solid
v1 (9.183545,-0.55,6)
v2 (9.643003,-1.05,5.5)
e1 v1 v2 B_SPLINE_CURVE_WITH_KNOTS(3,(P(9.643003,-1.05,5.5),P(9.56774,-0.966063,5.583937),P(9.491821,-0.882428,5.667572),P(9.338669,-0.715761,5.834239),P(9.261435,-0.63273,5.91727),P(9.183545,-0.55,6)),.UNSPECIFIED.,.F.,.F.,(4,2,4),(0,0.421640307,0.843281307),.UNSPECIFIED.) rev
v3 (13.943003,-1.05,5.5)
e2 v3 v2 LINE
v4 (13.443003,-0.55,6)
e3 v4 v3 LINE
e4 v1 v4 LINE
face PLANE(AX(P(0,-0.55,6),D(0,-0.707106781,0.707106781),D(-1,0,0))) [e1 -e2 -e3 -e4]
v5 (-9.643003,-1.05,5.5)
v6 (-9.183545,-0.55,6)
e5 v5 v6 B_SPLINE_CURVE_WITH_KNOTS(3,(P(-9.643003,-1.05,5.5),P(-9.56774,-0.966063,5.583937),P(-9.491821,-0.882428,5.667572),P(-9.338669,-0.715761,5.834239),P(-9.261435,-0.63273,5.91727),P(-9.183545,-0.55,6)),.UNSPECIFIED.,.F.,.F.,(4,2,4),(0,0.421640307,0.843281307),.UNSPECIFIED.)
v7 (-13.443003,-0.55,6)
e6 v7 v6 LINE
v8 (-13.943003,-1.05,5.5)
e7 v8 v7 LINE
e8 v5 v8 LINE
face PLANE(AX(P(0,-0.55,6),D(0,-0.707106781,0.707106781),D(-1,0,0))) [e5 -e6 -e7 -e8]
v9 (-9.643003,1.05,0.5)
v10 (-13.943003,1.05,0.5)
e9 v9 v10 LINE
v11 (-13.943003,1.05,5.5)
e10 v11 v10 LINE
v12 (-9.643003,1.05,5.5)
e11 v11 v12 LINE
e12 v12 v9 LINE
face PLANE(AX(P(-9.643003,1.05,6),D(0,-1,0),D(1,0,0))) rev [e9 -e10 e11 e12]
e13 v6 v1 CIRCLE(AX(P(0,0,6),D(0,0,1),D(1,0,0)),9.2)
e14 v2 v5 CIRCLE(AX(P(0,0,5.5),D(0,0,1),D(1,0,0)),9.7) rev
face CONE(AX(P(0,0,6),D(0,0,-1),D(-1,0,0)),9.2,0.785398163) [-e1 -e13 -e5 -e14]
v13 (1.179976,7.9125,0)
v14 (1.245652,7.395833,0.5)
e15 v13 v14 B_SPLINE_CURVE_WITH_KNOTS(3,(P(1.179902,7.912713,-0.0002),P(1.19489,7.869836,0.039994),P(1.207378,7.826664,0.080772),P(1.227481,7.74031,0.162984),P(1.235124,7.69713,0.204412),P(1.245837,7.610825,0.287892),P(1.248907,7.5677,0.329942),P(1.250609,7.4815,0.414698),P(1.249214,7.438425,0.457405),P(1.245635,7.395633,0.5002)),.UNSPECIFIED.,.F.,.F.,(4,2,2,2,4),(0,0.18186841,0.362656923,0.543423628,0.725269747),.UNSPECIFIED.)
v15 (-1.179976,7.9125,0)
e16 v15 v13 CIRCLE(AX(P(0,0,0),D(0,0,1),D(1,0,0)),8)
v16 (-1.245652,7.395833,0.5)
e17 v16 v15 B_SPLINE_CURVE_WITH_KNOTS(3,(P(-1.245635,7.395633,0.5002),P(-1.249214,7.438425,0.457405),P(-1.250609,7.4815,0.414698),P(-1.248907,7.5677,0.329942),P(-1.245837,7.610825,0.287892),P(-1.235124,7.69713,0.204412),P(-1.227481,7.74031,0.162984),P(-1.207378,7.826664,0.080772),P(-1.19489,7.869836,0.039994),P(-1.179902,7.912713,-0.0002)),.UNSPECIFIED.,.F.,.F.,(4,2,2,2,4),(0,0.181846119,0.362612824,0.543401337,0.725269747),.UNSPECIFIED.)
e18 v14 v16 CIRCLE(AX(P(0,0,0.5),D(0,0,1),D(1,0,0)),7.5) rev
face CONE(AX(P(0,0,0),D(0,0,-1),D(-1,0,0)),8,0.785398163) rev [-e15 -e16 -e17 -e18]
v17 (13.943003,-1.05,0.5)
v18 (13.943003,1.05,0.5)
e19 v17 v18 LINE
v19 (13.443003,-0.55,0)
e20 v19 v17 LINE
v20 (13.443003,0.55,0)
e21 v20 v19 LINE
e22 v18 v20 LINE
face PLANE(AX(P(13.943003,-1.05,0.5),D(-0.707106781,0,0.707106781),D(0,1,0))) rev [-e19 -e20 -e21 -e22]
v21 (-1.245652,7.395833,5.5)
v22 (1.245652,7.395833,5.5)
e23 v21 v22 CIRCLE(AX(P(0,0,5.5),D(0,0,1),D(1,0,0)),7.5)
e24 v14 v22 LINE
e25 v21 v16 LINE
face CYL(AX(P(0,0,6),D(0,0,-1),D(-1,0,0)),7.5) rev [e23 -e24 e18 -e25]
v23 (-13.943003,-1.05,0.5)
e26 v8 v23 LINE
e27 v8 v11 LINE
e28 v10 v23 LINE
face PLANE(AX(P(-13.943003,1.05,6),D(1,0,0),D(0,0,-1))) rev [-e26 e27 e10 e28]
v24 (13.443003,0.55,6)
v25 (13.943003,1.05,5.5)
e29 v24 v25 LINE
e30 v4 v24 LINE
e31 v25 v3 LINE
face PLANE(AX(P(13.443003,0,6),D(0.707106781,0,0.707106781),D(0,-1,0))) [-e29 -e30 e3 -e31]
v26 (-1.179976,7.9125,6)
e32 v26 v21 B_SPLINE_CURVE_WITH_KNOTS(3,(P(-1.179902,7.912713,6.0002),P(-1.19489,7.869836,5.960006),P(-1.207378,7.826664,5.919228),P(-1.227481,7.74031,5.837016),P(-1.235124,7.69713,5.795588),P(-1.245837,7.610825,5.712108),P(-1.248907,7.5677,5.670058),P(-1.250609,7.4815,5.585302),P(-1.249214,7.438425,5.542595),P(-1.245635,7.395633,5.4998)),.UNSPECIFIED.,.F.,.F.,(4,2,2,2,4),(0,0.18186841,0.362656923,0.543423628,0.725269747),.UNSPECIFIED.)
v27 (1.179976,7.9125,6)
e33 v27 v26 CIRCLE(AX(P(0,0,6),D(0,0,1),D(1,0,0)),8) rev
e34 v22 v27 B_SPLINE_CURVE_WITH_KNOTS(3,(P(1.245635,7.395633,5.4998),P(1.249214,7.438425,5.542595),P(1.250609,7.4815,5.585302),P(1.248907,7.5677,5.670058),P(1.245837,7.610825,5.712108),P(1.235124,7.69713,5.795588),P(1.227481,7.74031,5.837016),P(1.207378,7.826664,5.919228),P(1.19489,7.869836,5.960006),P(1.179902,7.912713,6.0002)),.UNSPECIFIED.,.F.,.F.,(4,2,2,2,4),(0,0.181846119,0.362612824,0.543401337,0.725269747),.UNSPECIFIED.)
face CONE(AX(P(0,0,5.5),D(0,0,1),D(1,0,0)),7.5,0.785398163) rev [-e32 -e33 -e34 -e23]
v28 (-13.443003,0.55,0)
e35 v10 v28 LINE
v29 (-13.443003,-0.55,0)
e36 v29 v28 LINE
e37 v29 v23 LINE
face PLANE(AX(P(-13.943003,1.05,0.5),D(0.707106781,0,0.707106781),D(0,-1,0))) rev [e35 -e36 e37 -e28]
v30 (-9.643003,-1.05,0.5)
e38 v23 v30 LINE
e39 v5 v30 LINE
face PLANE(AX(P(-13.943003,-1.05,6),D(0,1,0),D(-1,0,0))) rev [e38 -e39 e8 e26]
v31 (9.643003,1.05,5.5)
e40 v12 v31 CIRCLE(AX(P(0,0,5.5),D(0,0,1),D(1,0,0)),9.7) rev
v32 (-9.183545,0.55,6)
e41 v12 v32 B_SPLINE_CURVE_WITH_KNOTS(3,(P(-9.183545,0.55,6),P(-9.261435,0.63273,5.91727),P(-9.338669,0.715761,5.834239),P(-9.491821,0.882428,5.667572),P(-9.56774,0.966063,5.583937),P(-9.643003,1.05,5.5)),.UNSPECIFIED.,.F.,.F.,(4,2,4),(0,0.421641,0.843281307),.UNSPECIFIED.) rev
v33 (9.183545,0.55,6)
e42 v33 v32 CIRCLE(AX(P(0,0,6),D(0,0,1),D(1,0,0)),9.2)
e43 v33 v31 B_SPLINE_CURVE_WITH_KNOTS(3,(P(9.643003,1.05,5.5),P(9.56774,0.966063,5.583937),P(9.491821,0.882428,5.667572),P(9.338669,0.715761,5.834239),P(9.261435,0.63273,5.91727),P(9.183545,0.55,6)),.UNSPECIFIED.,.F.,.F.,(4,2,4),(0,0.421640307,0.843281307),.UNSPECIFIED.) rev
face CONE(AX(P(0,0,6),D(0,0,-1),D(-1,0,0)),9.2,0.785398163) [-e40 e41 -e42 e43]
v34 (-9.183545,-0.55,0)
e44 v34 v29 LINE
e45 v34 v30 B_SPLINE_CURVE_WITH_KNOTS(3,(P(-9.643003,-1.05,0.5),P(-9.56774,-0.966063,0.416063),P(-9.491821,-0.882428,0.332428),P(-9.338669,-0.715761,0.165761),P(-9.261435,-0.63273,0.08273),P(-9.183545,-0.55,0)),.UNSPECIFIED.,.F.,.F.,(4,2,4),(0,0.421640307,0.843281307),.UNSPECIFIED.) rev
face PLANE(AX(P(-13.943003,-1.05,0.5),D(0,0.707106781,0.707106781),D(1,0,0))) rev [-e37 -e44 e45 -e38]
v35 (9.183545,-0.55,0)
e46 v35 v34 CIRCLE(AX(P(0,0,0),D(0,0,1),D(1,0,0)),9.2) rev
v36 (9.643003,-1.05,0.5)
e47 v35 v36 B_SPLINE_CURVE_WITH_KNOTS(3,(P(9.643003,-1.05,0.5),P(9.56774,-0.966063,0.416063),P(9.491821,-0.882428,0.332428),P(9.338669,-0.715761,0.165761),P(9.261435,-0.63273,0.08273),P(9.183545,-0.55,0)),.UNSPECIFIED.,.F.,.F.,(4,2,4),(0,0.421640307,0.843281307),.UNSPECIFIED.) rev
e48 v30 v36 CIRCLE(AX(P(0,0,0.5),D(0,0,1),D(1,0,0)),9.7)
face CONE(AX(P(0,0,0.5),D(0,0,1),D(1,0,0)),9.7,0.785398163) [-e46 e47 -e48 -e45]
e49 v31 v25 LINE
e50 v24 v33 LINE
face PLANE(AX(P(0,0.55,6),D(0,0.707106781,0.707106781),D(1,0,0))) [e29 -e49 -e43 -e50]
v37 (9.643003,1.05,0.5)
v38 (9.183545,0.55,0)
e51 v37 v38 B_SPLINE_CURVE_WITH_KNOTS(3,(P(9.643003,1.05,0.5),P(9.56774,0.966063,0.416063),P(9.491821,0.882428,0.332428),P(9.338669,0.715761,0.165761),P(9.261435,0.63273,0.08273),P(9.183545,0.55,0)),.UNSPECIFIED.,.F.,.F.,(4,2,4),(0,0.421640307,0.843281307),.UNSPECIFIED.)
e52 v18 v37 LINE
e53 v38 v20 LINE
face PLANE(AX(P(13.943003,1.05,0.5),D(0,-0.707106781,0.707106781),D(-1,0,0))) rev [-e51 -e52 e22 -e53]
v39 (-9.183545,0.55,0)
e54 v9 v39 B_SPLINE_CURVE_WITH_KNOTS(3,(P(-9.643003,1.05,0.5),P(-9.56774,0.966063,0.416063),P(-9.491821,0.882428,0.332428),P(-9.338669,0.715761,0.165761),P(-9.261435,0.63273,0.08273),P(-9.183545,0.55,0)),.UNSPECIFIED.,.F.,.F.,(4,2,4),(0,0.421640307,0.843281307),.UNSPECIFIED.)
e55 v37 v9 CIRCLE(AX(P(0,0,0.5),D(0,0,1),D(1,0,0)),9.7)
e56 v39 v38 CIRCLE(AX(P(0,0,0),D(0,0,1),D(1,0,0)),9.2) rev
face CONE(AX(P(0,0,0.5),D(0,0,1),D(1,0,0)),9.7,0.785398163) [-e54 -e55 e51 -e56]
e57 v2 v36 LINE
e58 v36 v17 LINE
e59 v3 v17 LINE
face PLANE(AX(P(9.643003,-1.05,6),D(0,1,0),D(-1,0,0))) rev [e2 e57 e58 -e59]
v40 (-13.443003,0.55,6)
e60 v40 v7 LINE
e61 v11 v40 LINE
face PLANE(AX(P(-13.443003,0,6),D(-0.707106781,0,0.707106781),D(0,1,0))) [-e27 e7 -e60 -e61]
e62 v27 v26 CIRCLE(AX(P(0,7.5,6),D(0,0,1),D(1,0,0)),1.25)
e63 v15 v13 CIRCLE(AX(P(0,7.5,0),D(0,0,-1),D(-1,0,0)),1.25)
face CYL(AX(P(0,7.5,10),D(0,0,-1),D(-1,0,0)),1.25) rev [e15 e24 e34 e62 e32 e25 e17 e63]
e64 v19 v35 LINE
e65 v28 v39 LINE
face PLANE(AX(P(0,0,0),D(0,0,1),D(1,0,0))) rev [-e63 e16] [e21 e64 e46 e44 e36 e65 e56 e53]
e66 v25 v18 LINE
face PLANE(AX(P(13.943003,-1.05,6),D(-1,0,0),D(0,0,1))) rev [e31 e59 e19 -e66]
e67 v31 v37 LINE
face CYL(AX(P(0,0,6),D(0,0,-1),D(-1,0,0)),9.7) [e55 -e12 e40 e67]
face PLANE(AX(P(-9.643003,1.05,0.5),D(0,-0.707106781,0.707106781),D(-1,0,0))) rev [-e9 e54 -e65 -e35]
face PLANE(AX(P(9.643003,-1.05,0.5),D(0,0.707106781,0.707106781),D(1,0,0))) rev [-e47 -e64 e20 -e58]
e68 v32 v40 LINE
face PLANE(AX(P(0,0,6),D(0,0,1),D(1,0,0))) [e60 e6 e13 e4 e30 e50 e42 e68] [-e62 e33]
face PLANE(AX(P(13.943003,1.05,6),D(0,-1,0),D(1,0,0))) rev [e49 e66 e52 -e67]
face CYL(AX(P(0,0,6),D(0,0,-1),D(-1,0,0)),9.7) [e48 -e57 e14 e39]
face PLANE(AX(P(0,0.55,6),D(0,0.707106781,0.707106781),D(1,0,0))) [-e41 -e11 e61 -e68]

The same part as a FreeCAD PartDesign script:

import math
import FreeCAD as App
import Part
import Sketcher


def edges_at(feature, points):
    """Names of the edges that pass closest to the given points."""
    edges = feature.Shape.Edges
    near = lambda p: min(range(len(edges)), key=lambda i: edges[i].distToShape(Part.Vertex(*p))[0])
    return sorted({f"Edge{near(p) + 1}" for p in points})

doc = App.newDocument("Part")
body = doc.addObject("PartDesign::Body", "Body")

# Sketch on XY plane
sketch1 = body.newObject("Sketcher::SketchObject", "Sketch")
sketch1.AttachmentSupport = (doc.getObject("XY_Plane"), [""])
sketch1.MapMode = "FlatFace"
sketch1.addGeometry(Part.LineSegment(App.Vector(9.6, -1.1, 0), App.Vector(13.9, -1.1, 0)), False)
sketch1.addGeometry(Part.LineSegment(App.Vector(13.9, -1.1, 0), App.Vector(13.9, 1.1, 0)), False)
sketch1.addGeometry(Part.LineSegment(App.Vector(13.9, 1.1, 0), App.Vector(9.6, 1.1, 0)), False)
sketch1.addGeometry(Part.ArcOfCircle(Part.Circle(App.Vector(0, 0, 0), App.Vector(0, 0, 1), 9.7), math.radians(6), math.radians(174)), False)
sketch1.addGeometry(Part.LineSegment(App.Vector(-9.6, 1.1, 0), App.Vector(-13.9, 1.1, 0)), False)
sketch1.addGeometry(Part.LineSegment(App.Vector(-13.9, 1.1, 0), App.Vector(-13.9, -1.1, 0)), False)
sketch1.addGeometry(Part.LineSegment(App.Vector(-13.9, -1.1, 0), App.Vector(-9.6, -1.1, 0)), False)
sketch1.addGeometry(Part.ArcOfCircle(Part.Circle(App.Vector(0, 0, 0), App.Vector(0, 0, 1), 9.7), math.radians(-174), math.radians(-6)), False)
sketch1.addGeometry(Part.Circle(App.Vector(0, 0, 0), App.Vector(0, 0, 1), 7.5), False)
sketch1.addConstraint(Sketcher.Constraint("Coincident", 0, 2, 1, 1))
sketch1.addConstraint(Sketcher.Constraint("Coincident", 1, 2, 2, 1))
sketch1.addConstraint(Sketcher.Constraint("Coincident", 2, 2, 3, 1))
sketch1.addConstraint(Sketcher.Constraint("Coincident", 3, 2, 4, 1))
sketch1.addConstraint(Sketcher.Constraint("Coincident", 4, 2, 5, 1))
sketch1.addConstraint(Sketcher.Constraint("Coincident", 5, 2, 6, 1))
sketch1.addConstraint(Sketcher.Constraint("Coincident", 6, 2, 7, 1))
sketch1.addConstraint(Sketcher.Constraint("Coincident", 7, 2, 0, 1))
sketch1.addConstraint(Sketcher.Constraint("Horizontal", 0))
sketch1.addConstraint(Sketcher.Constraint("Vertical", 1))
sketch1.addConstraint(Sketcher.Constraint("Horizontal", 2))
sketch1.addConstraint(Sketcher.Constraint("Horizontal", 4))
sketch1.addConstraint(Sketcher.Constraint("Vertical", 5))
sketch1.addConstraint(Sketcher.Constraint("Horizontal", 6))
sketch1.addConstraint(Sketcher.Constraint("Coincident", 3, 3, -1, 1))
sketch1.addConstraint(Sketcher.Constraint("Coincident", 7, 3, -1, 1))
sketch1.addConstraint(Sketcher.Constraint("Coincident", 8, 3, -1, 1))
sketch1.addConstraint(Sketcher.Constraint("Equal", 3, 7))
sketch1.addConstraint(Sketcher.Constraint("Symmetric", 0, 2, 4, 2, -1, 1))
sketch1.addConstraint(Sketcher.Constraint("Horizontal", 2, 2, 3, 2))
sketch1.addConstraint(Sketcher.Constraint("Horizontal", 0, 2, 5, 2))
sketch1.addConstraint(Sketcher.Constraint("Diameter", 8, 15.0))
sketch1.addConstraint(Sketcher.Constraint("Radius", 3, 9.7))
sketch1.addConstraint(Sketcher.Constraint("DistanceX", 0, 1, 0, 2, 4.3))
sketch1.addConstraint(Sketcher.Constraint("DistanceY", 1, 1, 1, 2, 2.1))
pad1 = body.newObject("PartDesign::Pad", "Pad")
pad1.Profile = sketch1
pad1.Length = 6
doc.recompute()

chamfer = body.newObject("PartDesign::Chamfer", "Chamfer")
chamfer.Base = (pad1, edges_at(pad1, [
    (0, -9.7, 0),
    (-11.793, -1.05, 0),
    (-13.943, 0, 0),
    (-11.793, 1.05, 0),
    (-11.793, -1.05, 6),
    (0, -9.7, 6),
    (11.793, -1.05, 6),
    (-7.5, 0, 0),
    (-7.5, 0, 6),
    (13.943, 0, 6),
    (11.793, 1.05, 6),
    (0, 9.7, 6),
    (-11.793, 1.05, 6),
    (0, 9.7, 0),
    (-13.943, 0, 6),
    (11.793, 1.05, 0),
    (13.943, 0, 0),
    (11.793, -1.05, 0),
]))
chamfer.Size = 0.5

# Sketch on XY plane
sketch2 = body.newObject("Sketcher::SketchObject", "Sketch001")
sketch2.AttachmentSupport = (doc.getObject("XY_Plane"), [""])
sketch2.MapMode = "FlatFace"
sketch2.addGeometry(Part.Circle(App.Vector(0, 7.5, 0), App.Vector(0, 0, 1), 1.2), False)
sketch2.addConstraint(Sketcher.Constraint("PointOnObject", 0, 3, -2))
sketch2.addConstraint(Sketcher.Constraint("Diameter", 0, 2.5))
sketch2.addConstraint(Sketcher.Constraint("DistanceY", -1, 1, 0, 3, 7.5))
pocket1 = body.newObject("PartDesign::Pocket", "Pocket")
pocket1.Profile = sketch2
pocket1.Length = 10
pocket1.Reversed = True

doc.recompute()
